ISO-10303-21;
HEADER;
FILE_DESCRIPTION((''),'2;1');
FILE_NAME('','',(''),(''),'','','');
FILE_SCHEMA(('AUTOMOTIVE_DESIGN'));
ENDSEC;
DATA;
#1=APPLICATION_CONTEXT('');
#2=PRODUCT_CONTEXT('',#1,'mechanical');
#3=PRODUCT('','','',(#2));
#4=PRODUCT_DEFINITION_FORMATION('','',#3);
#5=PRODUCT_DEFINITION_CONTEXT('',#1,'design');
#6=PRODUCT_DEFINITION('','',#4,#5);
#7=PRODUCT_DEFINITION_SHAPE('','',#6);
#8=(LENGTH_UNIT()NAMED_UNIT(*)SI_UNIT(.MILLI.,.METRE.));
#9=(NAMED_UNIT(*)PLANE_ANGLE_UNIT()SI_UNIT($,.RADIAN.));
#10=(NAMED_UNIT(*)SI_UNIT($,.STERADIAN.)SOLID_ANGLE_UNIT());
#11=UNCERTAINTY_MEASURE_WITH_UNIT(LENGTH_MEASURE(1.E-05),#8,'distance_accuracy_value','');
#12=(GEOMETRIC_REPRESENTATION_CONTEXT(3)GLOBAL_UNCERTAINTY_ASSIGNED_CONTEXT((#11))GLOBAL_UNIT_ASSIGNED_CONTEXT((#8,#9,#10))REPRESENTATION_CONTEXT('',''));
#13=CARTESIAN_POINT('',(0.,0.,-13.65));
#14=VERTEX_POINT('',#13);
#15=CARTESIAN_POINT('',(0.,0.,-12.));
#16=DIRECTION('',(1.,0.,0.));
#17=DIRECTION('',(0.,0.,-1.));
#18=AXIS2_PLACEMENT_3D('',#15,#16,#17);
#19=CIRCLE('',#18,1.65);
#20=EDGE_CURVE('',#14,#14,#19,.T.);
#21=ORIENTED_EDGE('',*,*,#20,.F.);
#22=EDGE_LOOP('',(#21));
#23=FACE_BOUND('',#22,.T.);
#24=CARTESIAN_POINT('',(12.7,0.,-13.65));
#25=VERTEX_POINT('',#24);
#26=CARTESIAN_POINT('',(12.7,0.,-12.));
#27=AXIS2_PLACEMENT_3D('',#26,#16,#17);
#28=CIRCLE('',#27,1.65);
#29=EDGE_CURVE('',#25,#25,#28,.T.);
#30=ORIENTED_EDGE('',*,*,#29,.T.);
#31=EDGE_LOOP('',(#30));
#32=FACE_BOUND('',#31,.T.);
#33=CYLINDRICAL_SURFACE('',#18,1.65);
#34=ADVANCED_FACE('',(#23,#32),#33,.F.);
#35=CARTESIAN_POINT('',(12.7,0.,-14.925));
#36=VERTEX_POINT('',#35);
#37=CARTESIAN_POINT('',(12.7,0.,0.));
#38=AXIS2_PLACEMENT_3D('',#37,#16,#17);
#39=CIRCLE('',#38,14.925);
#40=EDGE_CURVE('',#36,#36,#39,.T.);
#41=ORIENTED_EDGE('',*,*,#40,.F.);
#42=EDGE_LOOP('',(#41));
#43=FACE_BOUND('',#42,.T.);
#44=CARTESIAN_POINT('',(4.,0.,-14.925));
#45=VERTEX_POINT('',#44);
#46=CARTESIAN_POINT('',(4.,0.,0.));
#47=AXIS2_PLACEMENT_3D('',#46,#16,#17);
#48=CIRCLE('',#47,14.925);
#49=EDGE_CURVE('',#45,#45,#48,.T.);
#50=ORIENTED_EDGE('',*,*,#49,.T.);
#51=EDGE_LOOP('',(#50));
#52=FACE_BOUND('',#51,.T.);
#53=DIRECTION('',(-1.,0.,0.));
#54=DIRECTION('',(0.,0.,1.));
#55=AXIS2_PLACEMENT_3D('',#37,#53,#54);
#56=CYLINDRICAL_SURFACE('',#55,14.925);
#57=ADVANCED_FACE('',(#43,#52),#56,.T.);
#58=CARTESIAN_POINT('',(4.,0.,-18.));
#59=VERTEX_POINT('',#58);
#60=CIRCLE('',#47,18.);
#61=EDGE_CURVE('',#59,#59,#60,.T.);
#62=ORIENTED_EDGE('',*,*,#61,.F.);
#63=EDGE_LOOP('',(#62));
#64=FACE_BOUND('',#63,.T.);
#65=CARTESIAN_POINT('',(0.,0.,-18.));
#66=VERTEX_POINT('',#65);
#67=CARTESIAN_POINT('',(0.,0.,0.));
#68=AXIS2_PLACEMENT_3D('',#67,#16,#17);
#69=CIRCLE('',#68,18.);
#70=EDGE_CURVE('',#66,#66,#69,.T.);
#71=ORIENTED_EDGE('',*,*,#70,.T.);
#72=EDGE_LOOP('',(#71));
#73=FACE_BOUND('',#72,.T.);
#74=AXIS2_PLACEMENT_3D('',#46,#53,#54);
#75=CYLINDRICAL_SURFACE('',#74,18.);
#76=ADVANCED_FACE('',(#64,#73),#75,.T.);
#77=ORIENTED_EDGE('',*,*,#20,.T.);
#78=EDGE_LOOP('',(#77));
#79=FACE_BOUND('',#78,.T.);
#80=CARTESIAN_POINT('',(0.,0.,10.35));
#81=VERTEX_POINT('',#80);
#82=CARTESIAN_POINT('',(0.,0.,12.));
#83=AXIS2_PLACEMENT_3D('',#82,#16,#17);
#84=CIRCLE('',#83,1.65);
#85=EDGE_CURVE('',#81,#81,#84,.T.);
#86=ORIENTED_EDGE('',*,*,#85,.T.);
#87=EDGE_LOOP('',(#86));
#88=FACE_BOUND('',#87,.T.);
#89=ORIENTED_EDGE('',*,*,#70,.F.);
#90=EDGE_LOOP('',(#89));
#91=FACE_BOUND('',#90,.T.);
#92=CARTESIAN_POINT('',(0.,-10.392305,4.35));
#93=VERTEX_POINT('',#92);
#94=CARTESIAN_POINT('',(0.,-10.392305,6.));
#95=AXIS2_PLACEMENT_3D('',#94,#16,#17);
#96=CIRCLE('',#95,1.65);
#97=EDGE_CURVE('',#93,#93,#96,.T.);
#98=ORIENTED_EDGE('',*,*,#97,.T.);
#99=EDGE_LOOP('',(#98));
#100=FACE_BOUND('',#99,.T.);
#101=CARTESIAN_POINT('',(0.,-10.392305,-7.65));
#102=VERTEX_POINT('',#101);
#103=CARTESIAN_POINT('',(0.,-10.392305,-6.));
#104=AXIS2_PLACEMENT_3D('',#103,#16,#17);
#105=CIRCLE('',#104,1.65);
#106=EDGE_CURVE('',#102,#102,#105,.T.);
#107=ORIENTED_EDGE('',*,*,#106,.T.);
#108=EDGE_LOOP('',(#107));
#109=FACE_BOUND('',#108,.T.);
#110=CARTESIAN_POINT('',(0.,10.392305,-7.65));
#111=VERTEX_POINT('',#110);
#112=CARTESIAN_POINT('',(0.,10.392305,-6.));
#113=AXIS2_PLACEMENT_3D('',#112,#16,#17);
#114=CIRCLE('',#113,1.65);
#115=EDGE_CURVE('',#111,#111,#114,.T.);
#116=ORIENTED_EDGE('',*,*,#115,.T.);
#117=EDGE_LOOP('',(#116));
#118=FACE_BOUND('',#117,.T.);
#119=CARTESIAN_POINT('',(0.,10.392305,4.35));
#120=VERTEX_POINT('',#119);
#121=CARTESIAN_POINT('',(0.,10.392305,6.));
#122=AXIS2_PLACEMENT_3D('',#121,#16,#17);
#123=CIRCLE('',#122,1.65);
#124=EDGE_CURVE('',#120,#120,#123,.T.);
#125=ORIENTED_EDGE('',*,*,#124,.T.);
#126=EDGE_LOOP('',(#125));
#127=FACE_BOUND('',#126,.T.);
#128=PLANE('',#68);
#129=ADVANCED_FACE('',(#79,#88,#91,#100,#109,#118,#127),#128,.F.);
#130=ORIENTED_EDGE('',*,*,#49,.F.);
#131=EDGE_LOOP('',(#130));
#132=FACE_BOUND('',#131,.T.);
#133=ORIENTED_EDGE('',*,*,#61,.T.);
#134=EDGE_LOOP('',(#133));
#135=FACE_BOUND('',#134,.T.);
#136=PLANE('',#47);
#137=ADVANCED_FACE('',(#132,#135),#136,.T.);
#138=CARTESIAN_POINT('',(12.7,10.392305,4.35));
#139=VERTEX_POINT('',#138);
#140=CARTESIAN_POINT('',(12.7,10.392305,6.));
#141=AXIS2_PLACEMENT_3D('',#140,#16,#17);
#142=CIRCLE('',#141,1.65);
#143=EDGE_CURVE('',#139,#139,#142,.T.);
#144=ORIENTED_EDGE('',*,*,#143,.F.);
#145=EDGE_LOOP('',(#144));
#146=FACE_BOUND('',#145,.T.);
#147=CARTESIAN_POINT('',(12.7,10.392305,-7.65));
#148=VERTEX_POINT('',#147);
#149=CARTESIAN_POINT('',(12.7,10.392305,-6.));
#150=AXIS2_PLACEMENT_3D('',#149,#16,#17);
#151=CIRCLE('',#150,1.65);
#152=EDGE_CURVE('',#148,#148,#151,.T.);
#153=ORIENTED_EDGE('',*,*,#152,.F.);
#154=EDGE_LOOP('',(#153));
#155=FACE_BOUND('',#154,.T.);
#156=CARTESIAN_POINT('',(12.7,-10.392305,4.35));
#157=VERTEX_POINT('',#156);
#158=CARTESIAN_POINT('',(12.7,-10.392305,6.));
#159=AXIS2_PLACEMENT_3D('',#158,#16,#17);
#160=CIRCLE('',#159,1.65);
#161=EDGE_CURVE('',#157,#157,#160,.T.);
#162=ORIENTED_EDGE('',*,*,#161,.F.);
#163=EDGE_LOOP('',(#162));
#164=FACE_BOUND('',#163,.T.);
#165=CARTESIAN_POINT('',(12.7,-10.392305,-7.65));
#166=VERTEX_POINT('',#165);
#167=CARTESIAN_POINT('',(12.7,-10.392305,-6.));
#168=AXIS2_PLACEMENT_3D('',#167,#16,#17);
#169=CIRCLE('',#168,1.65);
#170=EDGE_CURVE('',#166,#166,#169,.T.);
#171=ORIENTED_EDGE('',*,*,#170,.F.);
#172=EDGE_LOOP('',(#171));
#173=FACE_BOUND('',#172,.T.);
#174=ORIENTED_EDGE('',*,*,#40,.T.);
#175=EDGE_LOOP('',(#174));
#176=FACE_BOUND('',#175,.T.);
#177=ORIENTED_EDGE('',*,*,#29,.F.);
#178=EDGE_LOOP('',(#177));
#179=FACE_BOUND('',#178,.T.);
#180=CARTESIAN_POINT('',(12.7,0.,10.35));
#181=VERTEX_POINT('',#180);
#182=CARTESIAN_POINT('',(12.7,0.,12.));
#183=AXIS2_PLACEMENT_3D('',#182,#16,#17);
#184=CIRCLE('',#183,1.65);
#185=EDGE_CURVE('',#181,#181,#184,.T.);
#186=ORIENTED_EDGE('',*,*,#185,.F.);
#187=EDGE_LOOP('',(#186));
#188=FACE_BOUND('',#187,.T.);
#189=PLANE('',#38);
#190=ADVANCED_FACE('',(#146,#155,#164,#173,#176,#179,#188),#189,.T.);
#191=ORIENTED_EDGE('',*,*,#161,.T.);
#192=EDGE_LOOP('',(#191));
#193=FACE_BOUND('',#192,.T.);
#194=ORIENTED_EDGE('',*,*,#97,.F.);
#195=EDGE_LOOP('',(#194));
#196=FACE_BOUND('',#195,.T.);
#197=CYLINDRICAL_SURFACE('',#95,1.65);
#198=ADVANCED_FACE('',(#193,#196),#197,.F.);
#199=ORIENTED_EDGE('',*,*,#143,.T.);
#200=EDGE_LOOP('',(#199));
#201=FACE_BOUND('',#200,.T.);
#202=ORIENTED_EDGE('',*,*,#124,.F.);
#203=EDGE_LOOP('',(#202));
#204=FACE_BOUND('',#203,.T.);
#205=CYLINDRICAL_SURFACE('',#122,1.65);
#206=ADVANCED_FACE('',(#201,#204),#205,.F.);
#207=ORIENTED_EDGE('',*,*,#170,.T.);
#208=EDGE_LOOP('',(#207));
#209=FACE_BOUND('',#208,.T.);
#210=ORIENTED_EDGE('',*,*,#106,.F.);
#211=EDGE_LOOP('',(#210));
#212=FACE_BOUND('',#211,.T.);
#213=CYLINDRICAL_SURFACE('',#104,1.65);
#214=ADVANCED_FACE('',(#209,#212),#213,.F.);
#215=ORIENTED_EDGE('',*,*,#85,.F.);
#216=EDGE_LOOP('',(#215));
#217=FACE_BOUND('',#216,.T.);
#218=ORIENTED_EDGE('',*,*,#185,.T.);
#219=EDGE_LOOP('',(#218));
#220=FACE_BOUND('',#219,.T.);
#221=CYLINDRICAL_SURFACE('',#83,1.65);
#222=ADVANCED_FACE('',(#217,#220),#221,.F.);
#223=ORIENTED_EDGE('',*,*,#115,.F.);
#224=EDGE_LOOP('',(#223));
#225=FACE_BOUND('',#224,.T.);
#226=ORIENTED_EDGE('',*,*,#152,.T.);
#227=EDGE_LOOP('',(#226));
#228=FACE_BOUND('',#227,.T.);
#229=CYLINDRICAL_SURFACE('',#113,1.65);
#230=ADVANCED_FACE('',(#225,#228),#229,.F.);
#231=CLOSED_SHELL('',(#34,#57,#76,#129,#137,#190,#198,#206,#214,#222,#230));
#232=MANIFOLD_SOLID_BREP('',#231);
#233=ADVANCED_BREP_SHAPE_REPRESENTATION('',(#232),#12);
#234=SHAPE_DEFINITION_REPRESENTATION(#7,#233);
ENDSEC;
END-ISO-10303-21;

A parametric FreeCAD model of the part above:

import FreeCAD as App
import Part
import Sketcher

doc = App.newDocument("Part")
body = doc.addObject("PartDesign::Body", "Body")

# Sketch on YZ plane
sketch1 = doc.addObject("Sketcher::SketchObject", "Sketch")
body.addObject(sketch1)
sketch1.AttachmentSupport = (doc.YZ_Plane, [""])
sketch1.MapMode = "FlatFace"
sketch1.addGeometry(Part.Circle(App.Vector(0, 0, 0), App.Vector(0, 0, 1), 18), False)
sketch1.addConstraint(Sketcher.Constraint("Coincident", 0, 3, -1, 1))
sketch1.addConstraint(Sketcher.Constraint("Diameter", 0, 36.0))
pad1 = doc.addObject("PartDesign::Pad", "Pad")
body.addObject(pad1)
pad1.Profile = sketch1
pad1.Length = 4

# Sketch on YZ plane
sketch2 = doc.addObject("Sketcher::SketchObject", "Sketch001")
body.addObject(sketch2)
sketch2.AttachmentSupport = (doc.YZ_Plane, [""])
sketch2.MapMode = "FlatFace"
sketch2.AttachmentOffset = App.Placement(App.Vector(0, 0, 4), App.Rotation())
sketch2.addGeometry(Part.Circle(App.Vector(0, 0, 0), App.Vector(0, 0, 1), 14.925), False)
sketch2.addConstraint(Sketcher.Constraint("Coincident", 0, 3, -1, 1))
sketch2.addConstraint(Sketcher.Constraint("Diameter", 0, 29.85))
pad2 = doc.addObject("PartDesign::Pad", "Pad001")
body.addObject(pad2)
pad2.Profile = sketch2
pad2.Length = 8.7

# Sketch on YZ plane
sketch3 = doc.addObject("Sketcher::SketchObject", "Sketch002")
body.addObject(sketch3)
sketch3.AttachmentSupport = (doc.YZ_Plane, [""])
sketch3.MapMode = "FlatFace"
sketch3.AttachmentOffset = App.Placement(App.Vector(0, 0, 12.7), App.Rotation())
sketch3.addGeometry(Part.Circle(App.Vector(0, 12, 0), App.Vector(0, 0, 1), 1.65), False)
sketch3.addGeometry(Part.Circle(App.Vector(10.392305, 6, 0), App.Vector(0, 0, 1), 1.65), False)
sketch3.addGeometry(Part.Circle(App.Vector(10.392305, -6, 0), App.Vector(0, 0, 1), 1.65), False)
sketch3.addGeometry(Part.Circle(App.Vector(0, -12, 0), App.Vector(0, 0, 1), 1.65), False)
sketch3.addGeometry(Part.Circle(App.Vector(-10.392305, -6, 0), App.Vector(0, 0, 1), 1.65), False)
sketch3.addGeometry(Part.Circle(App.Vector(-10.392305, 6, 0), App.Vector(0, 0, 1), 1.65), False)
sketch3.addConstraint(Sketcher.Constraint("Equal", 0, 1))
sketch3.addConstraint(Sketcher.Constraint("Equal", 1, 2))
sketch3.addConstraint(Sketcher.Constraint("Equal", 2, 3))
sketch3.addConstraint(Sketcher.Constraint("Equal", 3, 4))
sketch3.addConstraint(Sketcher.Constraint("Equal", 4, 5))
sketch3.addConstraint(Sketcher.Constraint("Symmetric", 0, 3, 3, 3, -1, 1))
sketch3.addConstraint(Sketcher.Constraint("Symmetric", 1, 3, 4, 3, -1, 1))
sketch3.addConstraint(Sketcher.Constraint("Symmetric", 2, 3, 5, 3, -1, 1))
sketch3.addConstraint(Sketcher.Constraint("Symmetric", 2, 3, 4, 3, -2))
sketch3.addConstraint(Sketcher.Constraint("PointOnObject", 0, 3, -2))
sketch3.addConstraint(Sketcher.Constraint("Diameter", 0, 3.3))
sketch3.addConstraint(Sketcher.Constraint("DistanceY", -1, 1, 0, 3, 12.0))
sketch3.addConstraint(Sketcher.Constraint("DistanceY", -1, 1, 1, 3, 6.0))
sketch3.addConstraint(Sketcher.Constraint("DistanceX", 4, 3, 2, 3, 20.78461))
pocket1 = doc.addObject("PartDesign::Pocket", "Pocket")
body.addObject(pocket1)
pocket1.Profile = sketch3
pocket1.Type = "ThroughAll"

doc.recompute()
